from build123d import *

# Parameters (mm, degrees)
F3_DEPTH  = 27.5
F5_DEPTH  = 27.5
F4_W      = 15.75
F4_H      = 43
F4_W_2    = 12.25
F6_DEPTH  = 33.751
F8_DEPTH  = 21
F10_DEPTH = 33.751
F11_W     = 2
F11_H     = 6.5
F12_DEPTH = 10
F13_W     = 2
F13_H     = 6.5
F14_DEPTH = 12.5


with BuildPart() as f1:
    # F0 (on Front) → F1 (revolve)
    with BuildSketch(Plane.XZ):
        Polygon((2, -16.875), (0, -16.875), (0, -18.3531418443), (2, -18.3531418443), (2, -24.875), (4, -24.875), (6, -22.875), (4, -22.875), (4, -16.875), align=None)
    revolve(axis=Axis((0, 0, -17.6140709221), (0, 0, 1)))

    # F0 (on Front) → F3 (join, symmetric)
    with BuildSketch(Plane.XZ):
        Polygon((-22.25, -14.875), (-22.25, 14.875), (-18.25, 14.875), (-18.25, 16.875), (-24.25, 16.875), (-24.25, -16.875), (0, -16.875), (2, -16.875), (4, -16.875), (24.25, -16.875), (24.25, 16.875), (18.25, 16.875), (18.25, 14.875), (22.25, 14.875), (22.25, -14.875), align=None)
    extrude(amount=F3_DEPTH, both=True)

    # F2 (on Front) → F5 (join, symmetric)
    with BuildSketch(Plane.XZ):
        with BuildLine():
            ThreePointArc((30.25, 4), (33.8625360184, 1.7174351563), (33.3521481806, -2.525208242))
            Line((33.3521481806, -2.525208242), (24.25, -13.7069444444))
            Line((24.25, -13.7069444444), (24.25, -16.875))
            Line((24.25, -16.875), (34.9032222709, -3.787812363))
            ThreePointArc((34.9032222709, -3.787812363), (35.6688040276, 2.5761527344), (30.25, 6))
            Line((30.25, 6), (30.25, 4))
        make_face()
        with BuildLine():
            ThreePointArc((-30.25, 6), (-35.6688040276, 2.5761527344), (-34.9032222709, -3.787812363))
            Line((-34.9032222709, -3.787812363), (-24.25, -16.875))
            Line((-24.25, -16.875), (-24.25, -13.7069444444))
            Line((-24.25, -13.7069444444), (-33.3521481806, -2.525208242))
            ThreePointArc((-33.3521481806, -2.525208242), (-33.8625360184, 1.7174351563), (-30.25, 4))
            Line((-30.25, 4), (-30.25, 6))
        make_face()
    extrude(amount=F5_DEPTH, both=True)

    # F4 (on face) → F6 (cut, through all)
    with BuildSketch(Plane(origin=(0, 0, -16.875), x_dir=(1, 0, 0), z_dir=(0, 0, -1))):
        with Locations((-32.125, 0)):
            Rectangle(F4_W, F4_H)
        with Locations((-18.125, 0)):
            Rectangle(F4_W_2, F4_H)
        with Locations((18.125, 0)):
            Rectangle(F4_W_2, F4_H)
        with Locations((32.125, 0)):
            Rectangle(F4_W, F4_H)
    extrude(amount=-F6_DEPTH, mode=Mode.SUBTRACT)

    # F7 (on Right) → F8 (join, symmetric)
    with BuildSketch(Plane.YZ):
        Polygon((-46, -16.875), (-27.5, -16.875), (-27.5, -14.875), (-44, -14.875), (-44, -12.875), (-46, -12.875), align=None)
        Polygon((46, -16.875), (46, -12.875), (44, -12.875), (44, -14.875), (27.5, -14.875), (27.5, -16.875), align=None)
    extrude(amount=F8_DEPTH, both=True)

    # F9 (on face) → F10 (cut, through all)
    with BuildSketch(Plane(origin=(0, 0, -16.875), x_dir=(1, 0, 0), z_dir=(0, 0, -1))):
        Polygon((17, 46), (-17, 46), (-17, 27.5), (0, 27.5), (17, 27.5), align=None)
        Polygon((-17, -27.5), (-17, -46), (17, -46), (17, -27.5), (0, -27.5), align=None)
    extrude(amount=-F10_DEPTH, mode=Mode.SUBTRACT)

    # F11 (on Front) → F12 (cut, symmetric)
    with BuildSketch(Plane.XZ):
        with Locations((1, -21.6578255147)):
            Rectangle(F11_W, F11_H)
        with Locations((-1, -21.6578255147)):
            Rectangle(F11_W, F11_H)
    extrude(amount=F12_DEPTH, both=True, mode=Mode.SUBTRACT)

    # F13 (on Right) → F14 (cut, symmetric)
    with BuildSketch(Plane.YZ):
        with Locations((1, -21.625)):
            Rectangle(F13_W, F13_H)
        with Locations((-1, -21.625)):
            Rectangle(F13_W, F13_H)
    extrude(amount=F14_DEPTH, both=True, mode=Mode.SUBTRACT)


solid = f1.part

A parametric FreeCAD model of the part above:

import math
import FreeCAD as App
import Part
import Sketcher
from FreeCAD import Vector
Q = App.Units.Quantity


def add_polygon(sketch, points):
    """Adds a closed chain of lines whose ends are joined by coincident constraints."""
    first, n = sketch.GeometryCount, len(points)
    for a, b in zip(points, points[1:] + points[:1]):
        sketch.addGeometry(Part.LineSegment(App.Vector(*a, 0), App.Vector(*b, 0)), False)
    for i in range(n):
        sketch.addConstraint(Sketcher.Constraint("Coincident", first + i, 2, first + (i + 1) % n, 1))

doc = App.newDocument("Part")
body = doc.addObject("PartDesign::Body", "Body")

# Sketch on XZ plane
sketch1 = doc.addObject("Sketcher::SketchObject", "Sketch")
body.addObject(sketch1)
sketch1.AttachmentSupport = (doc.XZ_Plane, [""])
sketch1.MapMode = "FlatFace"
add_polygon(sketch1, [(0, -16.9), (0, -18.4), (2, -18.4), (2, -24.9), (4, -24.9), (6, -22.9), (4, -22.9), (4, -16.9)])  # lines 0-7
sketch1.addConstraint([
    Sketcher.Constraint("Vertical", 0),
    Sketcher.Constraint("Horizontal", 1),
    Sketcher.Constraint("Vertical", 2),
    Sketcher.Constraint("Horizontal", 3),
    Sketcher.Constraint("Horizontal", 5),
    Sketcher.Constraint("Vertical", 6),
    Sketcher.Constraint("Horizontal", 7),
    Sketcher.Constraint("PointOnObject", 0, 2, -2),
    Sketcher.Constraint("Vertical", 3, 2, 5, 2),
    Sketcher.Constraint("Equal", 1, 3),
    Sketcher.Constraint("Equal", 3, 5),
    Sketcher.Constraint("DistanceX", 1, 1, 1, 2, Q("2 mm")),
    Sketcher.Constraint("DistanceY", 6, 1, 6, 2, Q("6 mm")),
    Sketcher.Constraint("Angle", 4, Q("45 deg")),
    Sketcher.Constraint("DistanceY", 2, 2, -1, 1, Q("24.875 mm")),
    Sketcher.Constraint("DistanceY", 0, 2, 0, 1, Q("1.478142 mm")),
])
revolution = doc.addObject("PartDesign::Revolution", "Revolution")
body.addObject(revolution)
revolution.Profile = sketch1
revolution.ReferenceAxis = (sketch1, ["V_Axis"])
revolution.Angle = 360

# Sketch on XZ plane
sketch2 = doc.addObject("Sketcher::SketchObject", "Sketch001")
body.addObject(sketch2)
sketch2.AttachmentSupport = (doc.XZ_Plane, [""])
sketch2.MapMode = "FlatFace"
add_polygon(sketch2, [(-22.2, -14.9), (-22.2, 14.9), (-18.2, 14.9), (-18.2, 16.9), (-24.2, 16.9), (-24.2, -16.9), (24.2, -16.9), (24.2, 16.9), (18.2, 16.9), (18.2, 14.9), (22.2, 14.9), (22.2, -14.9)])  # lines 0-11
sketch2.addConstraint([
    Sketcher.Constraint("Vertical", 0),
    Sketcher.Constraint("Horizontal", 1),
    Sketcher.Constraint("Vertical", 2),
    Sketcher.Constraint("Horizontal", 3),
    Sketcher.Constraint("Vertical", 4),
    Sketcher.Constraint("Horizontal", 5),
    Sketcher.Constraint("Vertical", 6),
    Sketcher.Constraint("Horizontal", 7),
    Sketcher.Constraint("Vertical", 8),
    Sketcher.Constraint("Horizontal", 9),
    Sketcher.Constraint("Vertical", 10),
    Sketcher.Constraint("Horizontal", 11),
    Sketcher.Constraint("Symmetric", 3, 2, 5, 2, -1, 1),
    Sketcher.Constraint("Symmetric", 0, 2, 10, 2, -1, 1),
    Sketcher.Constraint("Symmetric", 2, 2, 7, 2, -2),
    Sketcher.Constraint("Horizontal", 1, 2, 8, 2),
    Sketcher.Constraint("DistanceX", 1, 1, 1, 2, Q("4 mm")),
    Sketcher.Constraint("DistanceX", 3, 2, 3, 1, Q("6 mm")),
    Sketcher.Constraint("DistanceY", 2, 1, 2, 2, Q("2 mm")),
    Sketcher.Constraint("DistanceX", 5, 1, 5, 2, Q("48.5 mm")),
    Sketcher.Constraint("DistanceY", 0, 1, 0, 2, Q("29.75 mm")),
])
pad1 = doc.addObject("PartDesign::Pad", "Pad")
body.addObject(pad1)
pad1.Profile = sketch2
pad1.Length = 55
pad1.Midplane = True

# Sketch on XZ plane
sketch3 = doc.addObject("Sketcher::SketchObject", "Sketch002")
body.addObject(sketch3)
sketch3.AttachmentSupport = (doc.XZ_Plane, [""])
sketch3.MapMode = "FlatFace"
sketch3.addGeometry([
    Part.ArcOfCircle(Part.Circle(Vector(30.2, 0, 0), Vector(0, 0, 1), 4), math.radians(-39), math.radians(90)),  # 0
    Part.LineSegment(Vector(33.4, -2.5, 0), Vector(24.2, -13.7, 0)),  # 1
    Part.LineSegment(Vector(24.2, -13.7, 0), Vector(24.2, -16.9, 0)),  # 2
    Part.LineSegment(Vector(24.2, -16.9, 0), Vector(34.9, -3.8, 0)),  # 3
    Part.ArcOfCircle(Part.Circle(Vector(30.2, 0, 0), Vector(0, 0, 1), 6), math.radians(-39), math.radians(90)),  # 4
    Part.LineSegment(Vector(30.2, 6, 0), Vector(30.2, 4, 0)),  # 5
    Part.ArcOfCircle(Part.Circle(Vector(-30.2, 0, 0), Vector(0, 0, 1), 6), math.radians(90), math.radians(219)),  # 6
    Part.LineSegment(Vector(-34.9, -3.8, 0), Vector(-24.2, -16.9, 0)),  # 7
    Part.LineSegment(Vector(-24.2, -16.9, 0), Vector(-24.2, -13.7, 0)),  # 8
    Part.LineSegment(Vector(-24.2, -13.7, 0), Vector(-33.4, -2.5, 0)),  # 9
    Part.ArcOfCircle(Part.Circle(Vector(-30.2, 0, 0), Vector(0, 0, 1), 4), math.radians(90), math.radians(219)),  # 10
    Part.LineSegment(Vector(-30.2, 4, 0), Vector(-30.2, 6, 0)),  # 11
], False)
sketch3.addConstraint([
    Sketcher.Constraint("Tangent", 0, 1, 1, 1),
    Sketcher.Constraint("Coincident", 1, 2, 2, 1),
    Sketcher.Constraint("Coincident", 2, 2, 3, 1),
    Sketcher.Constraint("Tangent", 3, 2, 4, 1),
    Sketcher.Constraint("Coincident", 4, 2, 5, 1),
    Sketcher.Constraint("Coincident", 5, 2, 0, 2),
    Sketcher.Constraint("Tangent", 6, 2, 7, 1),
    Sketcher.Constraint("Coincident", 7, 2, 8, 1),
    Sketcher.Constraint("Coincident", 8, 2, 9, 1),
    Sketcher.Constraint("Tangent", 9, 2, 10, 2),
    Sketcher.Constraint("Coincident", 10, 1, 11, 1),
    Sketcher.Constraint("Coincident", 11, 2, 6, 1),
    Sketcher.Constraint("Vertical", 2),
    Sketcher.Constraint("Vertical", 5),
    Sketcher.Constraint("Vertical", 8),
    Sketcher.Constraint("Vertical", 11),
    Sketcher.Constraint("Coincident", 4, 3, 0, 3),
    Sketcher.Constraint("Coincident", 10, 3, 6, 3),
    Sketcher.Constraint("Equal", 4, 6),
    Sketcher.Constraint("Equal", 0, 10),
    Sketcher.Constraint("Symmetric", 0, 3, 6, 3, -1, 1),
    Sketcher.Constraint("Symmetric", 3, 2, 6, 2, -2),
    Sketcher.Constraint("Symmetric", 1, 2, 8, 2, -2),
    Sketcher.Constraint("Parallel", 1, 3),
    Sketcher.Constraint("Vertical", 0, 3, 4, 2),
    Sketcher.Constraint("Vertical", 6, 3, 10, 1),
    Sketcher.Constraint("Radius", 0, Q("4 mm")),
    Sketcher.Constraint("Radius", 4, Q("6 mm")),
    Sketcher.Constraint("DistanceX", 1, 2, 0, 3, Q("6 mm")),
    Sketcher.Constraint("DistanceX", 6, 3, 0, 3, Q("60.5 mm")),
    Sketcher.Constraint("Distance", 3, Q("16.875 mm")),
])
pad2 = doc.addObject("PartDesign::Pad", "Pad001")
body.addObject(pad2)
pad2.Profile = sketch3
pad2.Length = 55
pad2.Midplane = True

# Sketch on XY plane
sketch4 = doc.addObject("Sketcher::SketchObject", "Sketch003")
body.addObject(sketch4)
sketch4.AttachmentSupport = (doc.XY_Plane, [""])
sketch4.MapMode = "FlatFace"
sketch4.AttachmentOffset = App.Placement(Vector(0, 0, -16.875), App.Rotation())
add_polygon(sketch4, [(-40, -22), (-40, 22), (-12, 22), (-12, -22)])  # lines 0-3
add_polygon(sketch4, [(12, -22), (12, 22), (40, 22), (40, -22)])  # lines 4-7
sketch4.addConstraint([
    Sketcher.Constraint("Vertical", 0),
    Sketcher.Constraint("Horizontal", 1),
    Sketcher.Constraint("Vertical", 2),
    Sketcher.Constraint("Horizontal", 3),
    Sketcher.Constraint("Vertical", 4),
    Sketcher.Constraint("Horizontal", 5),
    Sketcher.Constraint("Vertical", 6),
    Sketcher.Constraint("Horizontal", 7),
    Sketcher.Constraint("Symmetric", 2, 2, 4, 2, -1, 1),
    Sketcher.Constraint("Symmetric", 0, 2, 6, 2, -1, 1),
    Sketcher.Constraint("Horizontal", 1, 2, 4, 2),
    Sketcher.Constraint("DistanceX", 1, 1, 1, 2, Q("28 mm")),
    Sketcher.Constraint("DistanceY", 0, 1, 0, 2, Q("43 mm")),
    Sketcher.Constraint("DistanceX", 0, 2, -1, 1, Q("40 mm")),
])
pocket1 = doc.addObject("PartDesign::Pocket", "Pocket")
body.addObject(pocket1)
pocket1.Profile = sketch4
pocket1.Type = "ThroughAll"
pocket1.Reversed = True

# Sketch on YZ plane
sketch5 = doc.addObject("Sketcher::SketchObject", "Sketch004")
body.addObject(sketch5)
sketch5.AttachmentSupport = (doc.YZ_Plane, [""])
sketch5.MapMode = "FlatFace"
add_polygon(sketch5, [(-46, -16.9), (-27.5, -16.9), (-27.5, -14.9), (-44, -14.9), (-44, -12.9), (-46, -12.9)])  # lines 0-5
add_polygon(sketch5, [(46, -16.9), (46, -12.9), (44, -12.9), (44, -14.9), (27.5, -14.9), (27.5, -16.9)])  # lines 6-11
sketch5.addConstraint([
    Sketcher.Constraint("Horizontal", 0),
    Sketcher.Constraint("Vertical", 1),
    Sketcher.Constraint("Horizontal", 2),
    Sketcher.Constraint("Vertical", 3),
    Sketcher.Constraint("Horizontal", 4),
    Sketcher.Constraint("Vertical", 5),
    Sketcher.Constraint("Vertical", 6),
    Sketcher.Constraint("Horizontal", 7),
    Sketcher.Constraint("Vertical", 8),
    Sketcher.Constraint("Horizontal", 9),
    Sketcher.Constraint("Vertical", 10),
    Sketcher.Constraint("Horizontal", 11),
    Sketcher.Constraint("Symmetric", 4, 2, 6, 2, -2),
    Sketcher.Constraint("Symmetric", 2, 2, 8, 2, -2),
    Sketcher.Constraint("Symmetric", 0, 2, 10, 2, -2),
    Sketcher.Constraint("Equal", 7, 1),
    Sketcher.Constraint("Equal", 1, 3),
    Sketcher.Constraint("DistanceX", 4, 2, 4, 1, Q("2 mm")),
    Sketcher.Constraint("DistanceX", 0, 1, 0, 2, Q("18.5 mm")),
    Sketcher.Constraint("DistanceX", 2, 2, -1, 1, Q("44 mm")),
    Sketcher.Constraint("DistanceY", 0, 2, -1, 1, Q("16.875 mm")),
])
pad3 = doc.addObject("PartDesign::Pad", "Pad002")
body.addObject(pad3)
pad3.Profile = sketch5
pad3.Length = 42
pad3.Midplane = True

# Sketch on XY plane
sketch6 = doc.addObject("Sketcher::SketchObject", "Sketch005")
body.addObject(sketch6)
sketch6.AttachmentSupport = (doc.XY_Plane, [""])
sketch6.MapMode = "FlatFace"
sketch6.AttachmentOffset = App.Placement(Vector(0, 0, -16.875), App.Rotation())
add_polygon(sketch6, [(17, -46), (-17, -46), (-17, -28), (17, -28)])  # lines 0-3
add_polygon(sketch6, [(-17, 28), (-17, 46), (17, 46), (17, 28)])  # lines 4-7
sketch6.addConstraint([
    Sketcher.Constraint("Horizontal", 0),
    Sketcher.Constraint("Vertical", 1),
    Sketcher.Constraint("Horizontal", 2),
    Sketcher.Constraint("Vertical", 3),
    Sketcher.Constraint("Vertical", 4),
    Sketcher.Constraint("Horizontal", 5),
    Sketcher.Constraint("Vertical", 6),
    Sketcher.Constraint("Horizontal", 7),
    Sketcher.Constraint("Symmetric", 3, 2, 4, 2, -1, 1),
    Sketcher.Constraint("Symmetric", 1, 2, 6, 2, -1, 1),
    Sketcher.Constraint("Vertical", 1, 2, 4, 2),
    Sketcher.Constraint("DistanceX", 0, 2, 0, 1, Q("34 mm")),
    Sketcher.Constraint("DistanceY", 1, 1, 1, 2, Q("18.5 mm")),
    Sketcher.Constraint("DistanceY", 0, 2, -1, 1, Q("46 mm")),
])
pocket2 = doc.addObject("PartDesign::Pocket", "Pocket001")
body.addObject(pocket2)
pocket2.Profile = sketch6
pocket2.Type = "ThroughAll"
pocket2.Reversed = True

# Sketch on XZ plane
sketch7 = doc.addObject("Sketcher::SketchObject", "Sketch006")
body.addObject(sketch7)
sketch7.AttachmentSupport = (doc.XZ_Plane, [""])
sketch7.MapMode = "FlatFace"
add_polygon(sketch7, [(2, -24.9), (2, -18.4), (-2, -18.4), (-2, -24.9)])  # lines 0-3
sketch7.addConstraint([
    Sketcher.Constraint("Vertical", 0),
    Sketcher.Constraint("Horizontal", 1),
    Sketcher.Constraint("Vertical", 2),
    Sketcher.Constraint("Horizontal", 3),
    Sketcher.Constraint("DistanceX", 1, 2, 1, 1, Q("4 mm")),
    Sketcher.Constraint("DistanceY", 0, 1, 0, 2, Q("6.5 mm")),
    Sketcher.Constraint("DistanceX", -1, 1, 0, 2, Q("2 mm")),
    Sketcher.Constraint("DistanceY", 0, 2, -1, 1, Q("18.407826 mm")),
])
pocket3 = doc.addObject("PartDesign::Pocket", "Pocket002")
body.addObject(pocket3)
pocket3.Profile = sketch7
pocket3.Length = 20
pocket3.Midplane = True

# Sketch on YZ plane
sketch8 = doc.addObject("Sketcher::SketchObject", "Sketch007")
body.addObject(sketch8)
sketch8.AttachmentSupport = (doc.YZ_Plane, [""])
sketch8.MapMode = "FlatFace"
add_polygon(sketch8, [(2, -24.9), (2, -18.4), (-2, -18.4), (-2, -24.9)])  # lines 0-3
sketch8.addConstraint([
    Sketcher.Constraint("Vertical", 0),
    Sketcher.Constraint("Horizontal", 1),
    Sketcher.Constraint("Vertical", 2),
    Sketcher.Constraint("Horizontal", 3),
    Sketcher.Constraint("DistanceX", 1, 2, 1, 1, Q("4 mm")),
    Sketcher.Constraint("DistanceY", 0, 1, 0, 2, Q("6.5 mm")),
    Sketcher.Constraint("DistanceX", -1, 1, 0, 2, Q("2 mm")),
    Sketcher.Constraint("DistanceY", 0, 2, -1, 1, Q("18.375 mm")),
])
pocket4 = doc.addObject("PartDesign::Pocket", "Pocket003")
body.addObject(pocket4)
pocket4.Profile = sketch8
pocket4.Length = 25
pocket4.Midplane = True

doc.recompute()
